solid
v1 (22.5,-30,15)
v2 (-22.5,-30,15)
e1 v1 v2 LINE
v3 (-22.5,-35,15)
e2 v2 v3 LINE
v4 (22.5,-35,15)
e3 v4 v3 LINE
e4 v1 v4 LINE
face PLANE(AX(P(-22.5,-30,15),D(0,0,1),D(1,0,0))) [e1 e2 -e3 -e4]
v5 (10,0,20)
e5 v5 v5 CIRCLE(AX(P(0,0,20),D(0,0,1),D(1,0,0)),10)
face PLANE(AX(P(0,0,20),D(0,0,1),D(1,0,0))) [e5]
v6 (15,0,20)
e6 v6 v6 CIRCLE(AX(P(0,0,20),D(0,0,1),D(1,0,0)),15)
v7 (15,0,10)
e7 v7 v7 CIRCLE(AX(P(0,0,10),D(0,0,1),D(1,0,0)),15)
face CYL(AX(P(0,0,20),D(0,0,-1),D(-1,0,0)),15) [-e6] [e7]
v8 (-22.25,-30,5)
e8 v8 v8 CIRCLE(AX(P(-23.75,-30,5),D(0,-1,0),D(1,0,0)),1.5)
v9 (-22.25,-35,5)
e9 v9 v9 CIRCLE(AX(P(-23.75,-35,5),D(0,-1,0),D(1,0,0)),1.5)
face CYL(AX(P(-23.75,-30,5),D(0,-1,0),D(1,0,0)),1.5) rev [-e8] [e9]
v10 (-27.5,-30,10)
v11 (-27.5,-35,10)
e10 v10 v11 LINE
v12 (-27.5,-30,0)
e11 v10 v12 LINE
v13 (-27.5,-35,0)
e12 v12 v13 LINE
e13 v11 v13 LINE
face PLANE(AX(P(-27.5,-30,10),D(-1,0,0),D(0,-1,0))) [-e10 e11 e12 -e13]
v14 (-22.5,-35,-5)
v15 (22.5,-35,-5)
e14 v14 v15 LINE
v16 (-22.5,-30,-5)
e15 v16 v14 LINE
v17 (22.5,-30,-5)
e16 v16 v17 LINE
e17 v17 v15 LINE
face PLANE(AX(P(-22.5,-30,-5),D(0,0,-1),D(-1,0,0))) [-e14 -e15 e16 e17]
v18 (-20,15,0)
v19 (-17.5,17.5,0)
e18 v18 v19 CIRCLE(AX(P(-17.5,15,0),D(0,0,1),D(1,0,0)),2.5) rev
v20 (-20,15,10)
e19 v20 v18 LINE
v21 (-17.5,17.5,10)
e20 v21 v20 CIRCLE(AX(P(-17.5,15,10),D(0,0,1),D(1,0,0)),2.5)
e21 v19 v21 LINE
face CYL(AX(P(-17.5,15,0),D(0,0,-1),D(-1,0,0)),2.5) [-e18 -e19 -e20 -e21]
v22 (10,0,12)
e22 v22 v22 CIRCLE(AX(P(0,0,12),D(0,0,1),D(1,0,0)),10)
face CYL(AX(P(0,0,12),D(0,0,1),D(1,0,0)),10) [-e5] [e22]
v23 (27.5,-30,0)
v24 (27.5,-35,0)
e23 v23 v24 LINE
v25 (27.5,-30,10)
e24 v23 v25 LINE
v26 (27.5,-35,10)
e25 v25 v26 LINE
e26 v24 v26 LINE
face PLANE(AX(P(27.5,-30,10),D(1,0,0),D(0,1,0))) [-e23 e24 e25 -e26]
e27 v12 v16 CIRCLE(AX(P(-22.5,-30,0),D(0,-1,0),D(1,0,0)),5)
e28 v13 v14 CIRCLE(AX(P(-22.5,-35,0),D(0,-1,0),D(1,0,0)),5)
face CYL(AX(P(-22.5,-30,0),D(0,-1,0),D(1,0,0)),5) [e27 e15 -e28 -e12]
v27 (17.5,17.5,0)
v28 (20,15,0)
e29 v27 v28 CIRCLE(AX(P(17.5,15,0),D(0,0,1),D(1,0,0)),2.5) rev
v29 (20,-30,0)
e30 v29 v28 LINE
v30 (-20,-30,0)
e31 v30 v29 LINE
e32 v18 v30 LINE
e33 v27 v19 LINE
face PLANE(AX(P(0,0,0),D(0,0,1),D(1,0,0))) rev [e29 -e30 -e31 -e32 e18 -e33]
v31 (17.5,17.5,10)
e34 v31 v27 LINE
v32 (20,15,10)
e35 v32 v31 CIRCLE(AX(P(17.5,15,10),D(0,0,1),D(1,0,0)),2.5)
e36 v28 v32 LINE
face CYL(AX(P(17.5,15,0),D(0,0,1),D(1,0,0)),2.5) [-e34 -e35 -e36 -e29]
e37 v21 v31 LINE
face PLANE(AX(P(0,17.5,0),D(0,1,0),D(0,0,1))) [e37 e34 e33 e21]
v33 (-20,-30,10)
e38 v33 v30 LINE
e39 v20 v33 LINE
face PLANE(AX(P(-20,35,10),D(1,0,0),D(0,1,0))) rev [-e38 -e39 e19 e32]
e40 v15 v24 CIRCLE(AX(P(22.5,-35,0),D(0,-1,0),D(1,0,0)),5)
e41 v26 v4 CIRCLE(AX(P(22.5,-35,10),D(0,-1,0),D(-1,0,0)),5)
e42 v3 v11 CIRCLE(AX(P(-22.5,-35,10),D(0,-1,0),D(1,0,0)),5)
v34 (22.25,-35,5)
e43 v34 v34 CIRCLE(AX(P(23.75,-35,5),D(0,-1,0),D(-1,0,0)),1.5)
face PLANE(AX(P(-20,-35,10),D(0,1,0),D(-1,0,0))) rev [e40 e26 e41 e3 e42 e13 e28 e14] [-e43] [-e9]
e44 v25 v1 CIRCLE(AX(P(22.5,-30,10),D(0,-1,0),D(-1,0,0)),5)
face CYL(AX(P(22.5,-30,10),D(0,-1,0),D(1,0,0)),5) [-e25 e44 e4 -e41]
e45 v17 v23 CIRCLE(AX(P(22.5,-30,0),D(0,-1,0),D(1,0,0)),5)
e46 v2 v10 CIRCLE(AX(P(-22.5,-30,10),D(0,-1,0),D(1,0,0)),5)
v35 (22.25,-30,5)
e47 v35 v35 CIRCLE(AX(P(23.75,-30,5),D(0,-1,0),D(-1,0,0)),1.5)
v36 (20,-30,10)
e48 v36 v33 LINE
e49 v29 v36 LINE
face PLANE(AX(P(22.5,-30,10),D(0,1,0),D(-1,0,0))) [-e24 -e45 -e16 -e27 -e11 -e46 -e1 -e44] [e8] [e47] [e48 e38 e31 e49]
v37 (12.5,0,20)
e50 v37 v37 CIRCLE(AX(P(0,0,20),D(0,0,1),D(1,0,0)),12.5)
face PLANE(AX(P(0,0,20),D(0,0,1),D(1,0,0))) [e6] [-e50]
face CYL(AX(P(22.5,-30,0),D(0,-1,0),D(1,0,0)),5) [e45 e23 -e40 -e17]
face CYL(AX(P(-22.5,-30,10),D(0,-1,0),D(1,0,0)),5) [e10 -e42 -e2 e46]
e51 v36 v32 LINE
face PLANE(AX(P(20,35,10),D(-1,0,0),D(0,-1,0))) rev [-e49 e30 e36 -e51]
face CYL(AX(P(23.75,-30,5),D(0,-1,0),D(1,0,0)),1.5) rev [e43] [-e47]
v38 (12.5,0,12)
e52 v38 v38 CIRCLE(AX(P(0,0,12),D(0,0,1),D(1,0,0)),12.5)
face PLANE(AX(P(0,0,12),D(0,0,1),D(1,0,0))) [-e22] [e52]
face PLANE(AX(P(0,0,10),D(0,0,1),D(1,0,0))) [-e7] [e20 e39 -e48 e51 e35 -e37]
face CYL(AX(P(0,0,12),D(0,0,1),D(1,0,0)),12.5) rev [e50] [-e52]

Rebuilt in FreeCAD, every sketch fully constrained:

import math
import FreeCAD as App
import Part
import Sketcher


def edges_at(feature, points):
    """Names of the edges that pass closest to the given points."""
    edges = feature.Shape.Edges
    near = lambda p: min(range(len(edges)), key=lambda i: edges[i].distToShape(Part.Vertex(*p))[0])
    return sorted({f"Edge{near(p) + 1}" for p in points})

doc = App.newDocument("Part")
body = doc.addObject("PartDesign::Body", "Body")

sketch1 = body.newObject("Sketcher::SketchObject", "Sketch")
sketch1.AttachmentSupport = (doc.getObject("XY_Plane"), [""])
sketch1.MapMode = "FlatFace"
sketch1.addGeometry([
    Part.LineSegment(App.Vector(-20, 35, 0), App.Vector(-20, -35, 0)),
    Part.LineSegment(App.Vector(-20, -35, 0), App.Vector(20, -35, 0)),
    Part.LineSegment(App.Vector(20, -35, 0), App.Vector(20, 35, 0)),
    Part.LineSegment(App.Vector(20, 35, 0), App.Vector(-20, 35, 0)),
], False)
sketch1.addConstraint([
    Sketcher.Constraint("Coincident", 0, 2, 1, 1),
    Sketcher.Constraint("Coincident", 1, 2, 2, 1),
    Sketcher.Constraint("Coincident", 2, 2, 3, 1),
    Sketcher.Constraint("Coincident", 3, 2, 0, 1),
    Sketcher.Constraint("Vertical", 0),
    Sketcher.Constraint("Horizontal", 1),
    Sketcher.Constraint("Vertical", 2),
    Sketcher.Constraint("Horizontal", 3),
    Sketcher.Constraint("Symmetric", 0, 2, 2, 2, -1, 1),
    Sketcher.Constraint("DistanceX", 1, 1, 1, 2, 40.0),
    Sketcher.Constraint("DistanceY", 0, 2, 0, 1, 70.0),
])
pad1 = body.newObject("PartDesign::Pad", "Pad")
pad1.Profile = sketch1
pad1.Length = 10

sketch2 = body.newObject("Sketcher::SketchObject", "Sketch001")
sketch2.AttachmentSupport = (doc.getObject("XY_Plane"), [""])
sketch2.MapMode = "FlatFace"
sketch2.AttachmentOffset = App.Placement(App.Vector(0, 0, 10), App.Rotation())
sketch2.addGeometry(Part.Circle(App.Vector(0, 0, 0), App.Vector(0, 0, 1), 15), False)
sketch2.addConstraint([
    Sketcher.Constraint("Coincident", 0, 3, -1, 1),
    Sketcher.Constraint("Diameter", 0, 30.0),
])
pad2 = body.newObject("PartDesign::Pad", "Pad001")
pad2.Profile = sketch2
pad2.Length = 10

sketch3 = body.newObject("Sketcher::SketchObject", "Sketch002")
sketch3.AttachmentSupport = (doc.getObject("XY_Plane"), [""])
sketch3.MapMode = "FlatFace"
sketch3.AttachmentOffset = App.Placement(App.Vector(0, 0, 20), App.Rotation())
sketch3.addGeometry([
    Part.Circle(App.Vector(0, 0, 0), App.Vector(0, 0, 1), 12),
    Part.Circle(App.Vector(0, 0, 0), App.Vector(0, 0, 1), 10),
], False)
sketch3.addConstraint([
    Sketcher.Constraint("Coincident", 0, 3, -1, 1),
    Sketcher.Constraint("Coincident", 1, 3, -1, 1),
    Sketcher.Constraint("Diameter", 0, 25.0),
    Sketcher.Constraint("Diameter", 1, 20.0),
])
pocket1 = body.newObject("PartDesign::Pocket", "Pocket")
pocket1.Profile = sketch3
pocket1.Length = 8

sketch4 = body.newObject("Sketcher::SketchObject", "Sketch003")
sketch4.AttachmentSupport = (doc.getObject("XZ_Plane"), [""])
sketch4.MapMode = "FlatFace"
sketch4.AttachmentOffset = App.Placement(App.Vector(0, 0, -35), App.Rotation())
sketch4.addGeometry([
    Part.LineSegment(App.Vector(-20, 0, 0), App.Vector(-20, 10, 0)),
    Part.LineSegment(App.Vector(-20, 10, 0), App.Vector(20, 10, 0)),
    Part.LineSegment(App.Vector(20, 10, 0), App.Vector(20, 0, 0)),
    Part.LineSegment(App.Vector(20, 0, 0), App.Vector(-20, 0, 0)),
], False)
sketch4.addConstraint([
    Sketcher.Constraint("Coincident", 0, 2, 1, 1),
    Sketcher.Constraint("Coincident", 1, 2, 2, 1),
    Sketcher.Constraint("Coincident", 2, 2, 3, 1),
    Sketcher.Constraint("Coincident", 3, 2, 0, 1),
    Sketcher.Constraint("Vertical", 0),
    Sketcher.Constraint("Horizontal", 1),
    Sketcher.Constraint("Vertical", 2),
    Sketcher.Constraint("Horizontal", 3),
    Sketcher.Constraint("Symmetric", 2, 2, 3, 2, -1, 1),
    Sketcher.Constraint("DistanceX", 1, 1, 1, 2, 40.0),
    Sketcher.Constraint("DistanceY", 0, 1, 0, 2, 10.0),
])
pocket2 = body.newObject("PartDesign::Pocket", "Pocket001")
pocket2.Profile = sketch4
pocket2.Length = 17.5
pocket2.Reversed = True
doc.recompute()

fillet = body.newObject("PartDesign::Fillet", "Fillet")
fillet.Base = (pocket2, edges_at(pocket2, [(-20, 17.5, 5), (20, 17.5, 5)]))
fillet.Radius = 2.5

sketch5 = body.newObject("Sketcher::SketchObject", "Sketch004")
sketch5.AttachmentSupport = (doc.getObject("XZ_Plane"), [""])
sketch5.MapMode = "FlatFace"
sketch5.AttachmentOffset = App.Placement(App.Vector(0, 0, 35), App.Rotation())
sketch5.addGeometry([
    Part.LineSegment(App.Vector(22.5, 15, 0), App.Vector(-22.5, 15, 0)),
    Part.ArcOfCircle(Part.Circle(App.Vector(-22.5, 10, 0), App.Vector(0, 0, 1), 5), math.radians(90), math.radians(180)),
    Part.LineSegment(App.Vector(-27.5, 10, 0), App.Vector(-27.5, 0, 0)),
    Part.ArcOfCircle(Part.Circle(App.Vector(-22.5, 0, 0), App.Vector(0, 0, 1), 5), math.radians(180), math.radians(270)),
    Part.LineSegment(App.Vector(-22.5, -5, 0), App.Vector(22.5, -5, 0)),
    Part.ArcOfCircle(Part.Circle(App.Vector(22.5, 0, 0), App.Vector(0, 0, 1), 5), math.radians(-90), math.radians(0)),
    Part.LineSegment(App.Vector(27.5, 0, 0), App.Vector(27.5, 10, 0)),
    Part.ArcOfCircle(Part.Circle(App.Vector(22.5, 10, 0), App.Vector(0, 0, 1), 5), math.radians(0), math.radians(90)),
    Part.Circle(App.Vector(23.8, 5, 0), App.Vector(0, 0, 1), 1.5),
    Part.LineSegment(App.Vector(-20, 0, 0), App.Vector(-20, 10, 0)),
    Part.LineSegment(App.Vector(-20, 10, 0), App.Vector(20, 10, 0)),
    Part.LineSegment(App.Vector(20, 10, 0), App.Vector(20, 0, 0)),
    Part.LineSegment(App.Vector(20, 0, 0), App.Vector(-20, 0, 0)),
    Part.Circle(App.Vector(-23.8, 5, 0), App.Vector(0, 0, 1), 1.5),
], False)
sketch5.addConstraint([
    Sketcher.Constraint("Tangent", 0, 2, 1, 1),
    Sketcher.Constraint("Tangent", 1, 2, 2, 1),
    Sketcher.Constraint("Tangent", 2, 2, 3, 1),
    Sketcher.Constraint("Tangent", 3, 2, 4, 1),
    Sketcher.Constraint("Tangent", 4, 2, 5, 1),
    Sketcher.Constraint("Tangent", 5, 2, 6, 1),
    Sketcher.Constraint("Tangent", 6, 2, 7, 1),
    Sketcher.Constraint("Tangent", 7, 2, 0, 1),
    Sketcher.Constraint("Coincident", 9, 2, 10, 1),
    Sketcher.Constraint("Coincident", 10, 2, 11, 1),
    Sketcher.Constraint("Coincident", 11, 2, 12, 1),
    Sketcher.Constraint("Coincident", 12, 2, 9, 1),
    Sketcher.Constraint("Horizontal", 0),
    Sketcher.Constraint("Vertical", 2),
    Sketcher.Constraint("Horizontal", 4),
    Sketcher.Constraint("Vertical", 6),
    Sketcher.Constraint("Vertical", 9),
    Sketcher.Constraint("Horizontal", 10),
    Sketcher.Constraint("Vertical", 11),
    Sketcher.Constraint("Horizontal", 12),
    Sketcher.Constraint("Equal", 1, 3),
    Sketcher.Constraint("Equal", 3, 5),
    Sketcher.Constraint("Equal", 5, 7),
    Sketcher.Constraint("Equal", 8, 13),
    Sketcher.Constraint("Symmetric", 3, 3, 5, 3, -1, 1),
    Sketcher.Constraint("Symmetric", 11, 2, 12, 2, -1, 1),
    Sketcher.Constraint("Symmetric", 8, 3, 13, 3, -2),
    Sketcher.Constraint("Horizontal", 6, 2, 9, 2),
    Sketcher.Constraint("Diameter", 8, 3.0),
    Sketcher.Constraint("Radius", 1, 5.0),
    Sketcher.Constraint("DistanceX", 0, 2, 0, 1, 45.0),
    Sketcher.Constraint("DistanceX", 10, 1, 10, 2, 40.0),
    Sketcher.Constraint("DistanceY", 2, 2, 2, 1, 10.0),
    Sketcher.Constraint("DistanceY", -1, 1, 8, 3, 5.0),
    Sketcher.Constraint("DistanceX", 13, 3, 8, 3, 47.5),
])
pad3 = body.newObject("PartDesign::Pad", "Pad002")
pad3.Profile = sketch5
pad3.Length = 5
pad3.Reversed = True

doc.recompute()
